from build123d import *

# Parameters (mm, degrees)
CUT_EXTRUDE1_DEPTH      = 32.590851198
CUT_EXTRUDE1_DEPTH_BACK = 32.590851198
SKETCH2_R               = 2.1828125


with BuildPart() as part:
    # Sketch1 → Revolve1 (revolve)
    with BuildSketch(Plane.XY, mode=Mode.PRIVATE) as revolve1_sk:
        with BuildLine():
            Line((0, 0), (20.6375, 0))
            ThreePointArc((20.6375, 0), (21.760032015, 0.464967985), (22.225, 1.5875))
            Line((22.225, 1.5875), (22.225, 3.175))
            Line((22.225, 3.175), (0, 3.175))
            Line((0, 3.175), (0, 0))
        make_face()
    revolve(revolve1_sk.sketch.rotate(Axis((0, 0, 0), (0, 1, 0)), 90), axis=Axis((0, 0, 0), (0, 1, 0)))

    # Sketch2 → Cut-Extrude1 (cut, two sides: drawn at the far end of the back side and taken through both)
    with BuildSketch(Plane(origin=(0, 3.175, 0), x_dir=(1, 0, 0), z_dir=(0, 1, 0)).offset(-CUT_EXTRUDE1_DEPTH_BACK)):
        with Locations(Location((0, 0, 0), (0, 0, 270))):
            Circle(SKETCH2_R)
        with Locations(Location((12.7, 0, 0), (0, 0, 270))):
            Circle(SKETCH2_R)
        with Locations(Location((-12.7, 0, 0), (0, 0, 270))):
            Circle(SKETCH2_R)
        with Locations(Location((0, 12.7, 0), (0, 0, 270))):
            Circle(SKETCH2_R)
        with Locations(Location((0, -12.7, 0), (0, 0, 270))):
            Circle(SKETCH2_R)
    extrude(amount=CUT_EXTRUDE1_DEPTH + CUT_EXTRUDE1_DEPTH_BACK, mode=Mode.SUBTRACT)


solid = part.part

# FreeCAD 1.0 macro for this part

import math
import FreeCAD as App
import Part
import Sketcher

V = App.Vector
Q = App.Units.Quantity

doc = App.newDocument("Part")
body = doc.addObject("PartDesign::Body", "Body")

# Sketch on XY plane
sketch1 = body.newObject("Sketcher::SketchObject", "Sketch")
sketch1.AttachmentSupport = (doc.getObject("XY_Plane"), [""])
sketch1.MapMode = "FlatFace"
sketch1.addGeometry(Part.LineSegment(V(0, 0, 0), V(20.6, 0, 0)), False)
sketch1.addGeometry(Part.ArcOfCircle(Part.Circle(V(20.6, 1.6, 0), V(0, 0, 1), 1.6), math.radians(-90), math.radians(0)), False)
sketch1.addGeometry(Part.LineSegment(V(22.2, 1.6, 0), V(22.2, 3.2, 0)), False)
sketch1.addGeometry(Part.LineSegment(V(22.2, 3.2, 0), V(0, 3.2, 0)), False)
sketch1.addGeometry(Part.LineSegment(V(0, 3.2, 0), V(0, 0, 0)), False)
sketch1.addConstraint(Sketcher.Constraint("Tangent", 0, 2, 1, 1))
sketch1.addConstraint(Sketcher.Constraint("Tangent", 1, 2, 2, 1))
sketch1.addConstraint(Sketcher.Constraint("Coincident", 2, 2, 3, 1))
sketch1.addConstraint(Sketcher.Constraint("Coincident", 3, 2, 4, 1))
sketch1.addConstraint(Sketcher.Constraint("Coincident", 4, 2, 0, 1))
sketch1.addConstraint(Sketcher.Constraint("Horizontal", 0))
sketch1.addConstraint(Sketcher.Constraint("Vertical", 2))
sketch1.addConstraint(Sketcher.Constraint("Horizontal", 3))
sketch1.addConstraint(Sketcher.Constraint("Vertical", 4))
sketch1.addConstraint(Sketcher.Constraint("Coincident", 4, 2, -1, 1))
sketch1.addConstraint(Sketcher.Constraint("Radius", 1, Q("0.0625 in")))
sketch1.addConstraint(Sketcher.Constraint("DistanceX", 0, 1, 0, 2, Q("0.8125 in")))
sketch1.addConstraint(Sketcher.Constraint("DistanceY", 2, 1, 2, 2, Q("0.0625 in")))
revolution = body.newObject("PartDesign::Revolution", "Revolution")
revolution.Profile = sketch1
revolution.ReferenceAxis = (sketch1, ["V_Axis"])
revolution.Angle = 360

# Sketch on XZ plane
sketch2 = body.newObject("Sketcher::SketchObject", "Sketch001")
sketch2.AttachmentSupport = (doc.getObject("XZ_Plane"), [""])
sketch2.MapMode = "FlatFace"
sketch2.AttachmentOffset = App.Placement(V(0, 0, -0.125 * 25.4), App.Rotation())
sketch2.addGeometry(Part.Circle(V(0, 0, 0), V(0, 0, 1), 2.2), False)
sketch2.addGeometry(Part.Circle(V(12.7, 0, 0), V(0, 0, 1), 2.2), False)
sketch2.addGeometry(Part.Circle(V(-12.7, 0, 0), V(0, 0, 1), 2.2), False)
sketch2.addGeometry(Part.Circle(V(0, -12.7, 0), V(0, 0, 1), 2.2), False)
sketch2.addGeometry(Part.Circle(V(0, 12.7, 0), V(0, 0, 1), 2.2), False)
sketch2.addConstraint(Sketcher.Constraint("Coincident", 0, 3, -1, 1))
sketch2.addConstraint(Sketcher.Constraint("Equal", 0, 1))
sketch2.addConstraint(Sketcher.Constraint("Equal", 1, 2))
sketch2.addConstraint(Sketcher.Constraint("Equal", 2, 3))
sketch2.addConstraint(Sketcher.Constraint("Equal", 3, 4))
sketch2.addConstraint(Sketcher.Constraint("Symmetric", 1, 3, 2, 3, -1, 1))
sketch2.addConstraint(Sketcher.Constraint("Symmetric", 3, 3, 4, 3, -1, 1))
sketch2.addConstraint(Sketcher.Constraint("PointOnObject", 1, 3, -1))
sketch2.addConstraint(Sketcher.Constraint("PointOnObject", 3, 3, -2))
sketch2.addConstraint(Sketcher.Constraint("Diameter", 0, Q("0.171875 in")))
sketch2.addConstraint(Sketcher.Constraint("DistanceX", 2, 3, 1, 3, Q("1 in")))
sketch2.addConstraint(Sketcher.Constraint("DistanceY", 3, 3, 4, 3, Q("1 in")))
pocket1 = body.newObject("PartDesign::Pocket", "Pocket")
pocket1.Profile = sketch2
pocket1.Type = "ThroughAll"
pocket1.Midplane = True

doc.recompute()
